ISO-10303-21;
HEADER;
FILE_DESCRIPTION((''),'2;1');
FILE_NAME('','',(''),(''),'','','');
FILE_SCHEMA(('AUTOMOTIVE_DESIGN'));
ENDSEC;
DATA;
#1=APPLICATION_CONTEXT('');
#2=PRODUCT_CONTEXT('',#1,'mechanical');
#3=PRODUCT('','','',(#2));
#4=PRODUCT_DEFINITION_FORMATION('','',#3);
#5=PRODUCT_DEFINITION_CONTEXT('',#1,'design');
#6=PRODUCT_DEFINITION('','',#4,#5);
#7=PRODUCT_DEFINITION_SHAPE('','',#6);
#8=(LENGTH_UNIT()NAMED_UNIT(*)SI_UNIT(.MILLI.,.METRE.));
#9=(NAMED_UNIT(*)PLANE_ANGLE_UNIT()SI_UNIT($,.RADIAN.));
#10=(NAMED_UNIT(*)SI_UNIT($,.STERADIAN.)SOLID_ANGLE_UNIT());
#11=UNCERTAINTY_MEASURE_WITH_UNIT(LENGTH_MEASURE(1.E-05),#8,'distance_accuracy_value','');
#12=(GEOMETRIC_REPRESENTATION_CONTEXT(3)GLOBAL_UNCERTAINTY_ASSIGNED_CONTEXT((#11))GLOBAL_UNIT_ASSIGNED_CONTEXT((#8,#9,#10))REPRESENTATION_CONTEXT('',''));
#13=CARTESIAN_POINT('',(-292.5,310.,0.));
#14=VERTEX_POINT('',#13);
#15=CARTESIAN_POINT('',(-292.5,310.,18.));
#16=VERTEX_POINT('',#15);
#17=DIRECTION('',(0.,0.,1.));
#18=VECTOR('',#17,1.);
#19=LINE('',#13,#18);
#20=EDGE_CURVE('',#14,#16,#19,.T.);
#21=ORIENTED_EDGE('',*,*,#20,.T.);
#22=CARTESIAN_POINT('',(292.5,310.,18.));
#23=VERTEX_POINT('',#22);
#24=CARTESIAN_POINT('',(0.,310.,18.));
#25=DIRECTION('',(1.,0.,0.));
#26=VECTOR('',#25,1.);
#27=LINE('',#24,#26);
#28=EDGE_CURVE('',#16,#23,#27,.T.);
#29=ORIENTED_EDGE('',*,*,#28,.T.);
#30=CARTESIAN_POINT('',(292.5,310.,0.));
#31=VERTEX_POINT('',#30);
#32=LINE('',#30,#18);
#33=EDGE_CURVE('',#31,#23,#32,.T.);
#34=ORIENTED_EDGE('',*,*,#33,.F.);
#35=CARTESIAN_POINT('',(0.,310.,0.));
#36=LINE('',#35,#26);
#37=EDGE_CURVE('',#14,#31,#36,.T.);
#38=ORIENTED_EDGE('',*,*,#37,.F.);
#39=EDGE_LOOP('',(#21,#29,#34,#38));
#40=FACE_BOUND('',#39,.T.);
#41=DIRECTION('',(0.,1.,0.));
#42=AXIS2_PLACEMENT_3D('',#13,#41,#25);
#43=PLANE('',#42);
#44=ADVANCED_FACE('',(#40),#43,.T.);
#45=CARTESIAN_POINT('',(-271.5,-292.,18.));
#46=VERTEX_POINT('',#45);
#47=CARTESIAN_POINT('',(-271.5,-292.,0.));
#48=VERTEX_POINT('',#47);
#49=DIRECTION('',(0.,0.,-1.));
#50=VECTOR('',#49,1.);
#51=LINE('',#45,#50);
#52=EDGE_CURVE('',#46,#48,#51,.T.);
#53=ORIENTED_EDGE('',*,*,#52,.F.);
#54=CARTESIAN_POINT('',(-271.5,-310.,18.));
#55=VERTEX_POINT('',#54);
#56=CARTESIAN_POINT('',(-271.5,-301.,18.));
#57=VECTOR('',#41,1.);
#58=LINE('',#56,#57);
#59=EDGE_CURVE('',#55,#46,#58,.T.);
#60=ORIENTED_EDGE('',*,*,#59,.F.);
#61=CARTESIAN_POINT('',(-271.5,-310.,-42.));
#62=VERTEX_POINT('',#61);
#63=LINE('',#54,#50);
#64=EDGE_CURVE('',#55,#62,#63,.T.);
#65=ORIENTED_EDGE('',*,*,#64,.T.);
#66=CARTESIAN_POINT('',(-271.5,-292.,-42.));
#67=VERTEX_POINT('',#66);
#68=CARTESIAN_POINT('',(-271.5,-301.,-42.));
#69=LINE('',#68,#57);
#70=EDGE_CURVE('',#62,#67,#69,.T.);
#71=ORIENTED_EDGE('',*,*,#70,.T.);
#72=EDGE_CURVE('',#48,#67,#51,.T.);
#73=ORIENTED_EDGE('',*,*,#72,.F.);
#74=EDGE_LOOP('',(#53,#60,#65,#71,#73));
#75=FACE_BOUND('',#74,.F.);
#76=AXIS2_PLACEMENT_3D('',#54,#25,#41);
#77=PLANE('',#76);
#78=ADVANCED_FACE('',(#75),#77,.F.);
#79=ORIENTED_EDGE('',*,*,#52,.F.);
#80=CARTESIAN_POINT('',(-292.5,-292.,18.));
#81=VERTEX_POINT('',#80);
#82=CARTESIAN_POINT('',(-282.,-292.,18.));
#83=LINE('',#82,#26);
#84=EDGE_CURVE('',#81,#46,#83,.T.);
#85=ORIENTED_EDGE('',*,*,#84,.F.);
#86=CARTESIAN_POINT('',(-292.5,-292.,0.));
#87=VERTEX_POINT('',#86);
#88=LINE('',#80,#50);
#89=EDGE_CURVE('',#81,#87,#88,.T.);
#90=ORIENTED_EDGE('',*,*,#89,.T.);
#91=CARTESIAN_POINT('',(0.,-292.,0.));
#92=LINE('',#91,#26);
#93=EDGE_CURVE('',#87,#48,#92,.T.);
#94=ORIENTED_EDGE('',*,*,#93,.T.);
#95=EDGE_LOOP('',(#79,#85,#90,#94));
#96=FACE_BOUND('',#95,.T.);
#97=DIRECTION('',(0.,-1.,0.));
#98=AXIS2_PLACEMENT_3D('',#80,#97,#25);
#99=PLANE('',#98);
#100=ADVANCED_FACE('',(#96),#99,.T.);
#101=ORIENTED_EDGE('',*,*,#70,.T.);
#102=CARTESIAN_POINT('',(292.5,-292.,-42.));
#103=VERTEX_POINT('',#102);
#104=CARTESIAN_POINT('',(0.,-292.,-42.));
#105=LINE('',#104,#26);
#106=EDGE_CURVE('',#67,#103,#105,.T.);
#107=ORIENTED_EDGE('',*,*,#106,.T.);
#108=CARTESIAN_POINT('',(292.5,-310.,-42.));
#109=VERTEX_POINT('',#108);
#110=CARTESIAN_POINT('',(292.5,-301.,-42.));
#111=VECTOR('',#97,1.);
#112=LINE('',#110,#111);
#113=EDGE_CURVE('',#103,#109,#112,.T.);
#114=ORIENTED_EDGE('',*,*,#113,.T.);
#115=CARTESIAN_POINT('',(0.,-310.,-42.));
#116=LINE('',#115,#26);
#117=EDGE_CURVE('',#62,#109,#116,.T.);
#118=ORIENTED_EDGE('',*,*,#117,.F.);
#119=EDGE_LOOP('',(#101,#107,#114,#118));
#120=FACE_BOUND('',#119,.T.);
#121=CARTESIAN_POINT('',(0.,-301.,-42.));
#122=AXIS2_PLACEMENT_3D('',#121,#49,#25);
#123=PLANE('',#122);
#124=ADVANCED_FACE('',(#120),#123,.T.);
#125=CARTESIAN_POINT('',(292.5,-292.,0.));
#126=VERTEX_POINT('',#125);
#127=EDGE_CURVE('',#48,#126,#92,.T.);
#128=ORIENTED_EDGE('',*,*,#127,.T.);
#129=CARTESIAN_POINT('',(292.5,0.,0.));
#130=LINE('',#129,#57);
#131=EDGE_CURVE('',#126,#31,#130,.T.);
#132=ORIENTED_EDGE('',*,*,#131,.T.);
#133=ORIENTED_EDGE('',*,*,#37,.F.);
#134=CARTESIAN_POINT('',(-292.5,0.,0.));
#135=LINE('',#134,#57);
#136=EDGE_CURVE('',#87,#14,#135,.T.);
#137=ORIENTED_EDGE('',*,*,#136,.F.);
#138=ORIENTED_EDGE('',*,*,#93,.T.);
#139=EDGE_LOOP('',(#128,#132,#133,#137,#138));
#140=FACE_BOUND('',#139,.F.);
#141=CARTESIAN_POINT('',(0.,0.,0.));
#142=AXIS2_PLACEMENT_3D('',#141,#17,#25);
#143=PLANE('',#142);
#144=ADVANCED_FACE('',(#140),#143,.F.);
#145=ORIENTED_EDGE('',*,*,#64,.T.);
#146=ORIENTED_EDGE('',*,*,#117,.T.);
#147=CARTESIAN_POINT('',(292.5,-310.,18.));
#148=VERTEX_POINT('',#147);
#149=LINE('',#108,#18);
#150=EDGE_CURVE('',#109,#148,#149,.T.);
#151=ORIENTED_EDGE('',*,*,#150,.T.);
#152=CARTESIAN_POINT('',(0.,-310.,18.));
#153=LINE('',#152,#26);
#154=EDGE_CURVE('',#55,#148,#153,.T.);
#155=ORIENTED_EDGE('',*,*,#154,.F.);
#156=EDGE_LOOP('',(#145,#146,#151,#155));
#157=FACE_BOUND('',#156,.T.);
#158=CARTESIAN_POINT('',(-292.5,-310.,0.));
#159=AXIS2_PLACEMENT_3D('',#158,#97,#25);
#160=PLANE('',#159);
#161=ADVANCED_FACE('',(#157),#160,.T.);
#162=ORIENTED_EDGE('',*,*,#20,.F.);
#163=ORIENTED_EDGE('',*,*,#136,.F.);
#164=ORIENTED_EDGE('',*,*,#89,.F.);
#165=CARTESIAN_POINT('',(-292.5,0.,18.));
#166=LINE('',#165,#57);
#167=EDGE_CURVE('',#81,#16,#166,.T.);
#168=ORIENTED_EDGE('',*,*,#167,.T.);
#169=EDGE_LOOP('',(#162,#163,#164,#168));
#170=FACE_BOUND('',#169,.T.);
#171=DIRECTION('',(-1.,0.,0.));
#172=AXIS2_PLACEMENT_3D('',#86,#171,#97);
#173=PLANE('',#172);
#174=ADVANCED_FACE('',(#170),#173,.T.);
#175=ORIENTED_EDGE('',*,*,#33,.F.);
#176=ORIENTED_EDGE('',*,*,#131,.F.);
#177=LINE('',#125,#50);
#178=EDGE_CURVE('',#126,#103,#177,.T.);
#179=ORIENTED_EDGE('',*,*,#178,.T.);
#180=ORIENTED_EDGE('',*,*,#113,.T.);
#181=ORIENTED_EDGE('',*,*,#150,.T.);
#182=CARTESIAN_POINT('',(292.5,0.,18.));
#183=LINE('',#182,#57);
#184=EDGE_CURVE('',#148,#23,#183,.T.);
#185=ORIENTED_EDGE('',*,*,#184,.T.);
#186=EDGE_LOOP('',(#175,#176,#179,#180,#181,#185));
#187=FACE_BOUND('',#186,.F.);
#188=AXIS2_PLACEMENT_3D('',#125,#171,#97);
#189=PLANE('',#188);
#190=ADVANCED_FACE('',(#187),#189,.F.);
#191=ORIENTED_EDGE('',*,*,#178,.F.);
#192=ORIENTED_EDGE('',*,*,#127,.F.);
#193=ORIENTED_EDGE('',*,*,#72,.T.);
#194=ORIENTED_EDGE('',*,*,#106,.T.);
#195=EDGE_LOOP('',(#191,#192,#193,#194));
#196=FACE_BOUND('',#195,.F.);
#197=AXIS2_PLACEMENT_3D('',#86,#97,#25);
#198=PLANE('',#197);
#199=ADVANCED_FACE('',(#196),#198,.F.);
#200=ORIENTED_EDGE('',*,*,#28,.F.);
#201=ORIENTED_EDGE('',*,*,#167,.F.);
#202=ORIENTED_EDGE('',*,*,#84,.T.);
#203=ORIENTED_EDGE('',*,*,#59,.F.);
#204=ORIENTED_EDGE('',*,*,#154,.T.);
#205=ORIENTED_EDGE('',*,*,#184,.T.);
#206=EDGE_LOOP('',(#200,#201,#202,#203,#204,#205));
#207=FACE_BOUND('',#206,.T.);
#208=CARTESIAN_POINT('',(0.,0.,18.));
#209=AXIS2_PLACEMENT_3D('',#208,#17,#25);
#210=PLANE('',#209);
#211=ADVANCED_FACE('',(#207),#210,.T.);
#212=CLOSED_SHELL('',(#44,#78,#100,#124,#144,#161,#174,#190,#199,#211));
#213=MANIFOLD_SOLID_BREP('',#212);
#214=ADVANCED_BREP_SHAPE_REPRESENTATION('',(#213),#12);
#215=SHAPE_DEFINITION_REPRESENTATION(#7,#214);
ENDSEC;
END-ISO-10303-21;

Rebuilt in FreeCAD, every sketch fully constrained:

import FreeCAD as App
import Part
import Sketcher
from FreeCAD import Vector


def add_polygon(sketch, points):
    """Adds a closed chain of lines whose ends are joined by coincident constraints."""
    first, n = sketch.GeometryCount, len(points)
    for a, b in zip(points, points[1:] + points[:1]):
        sketch.addGeometry(Part.LineSegment(App.Vector(*a, 0), App.Vector(*b, 0)), False)
    for i in range(n):
        sketch.addConstraint(Sketcher.Constraint("Coincident", first + i, 2, first + (i + 1) % n, 1))

doc = App.newDocument("Part")
params = doc.addObject("Spreadsheet::Sheet", "Params")
for row, (alias, value) in enumerate([
    ("sketch1_width", "585 mm"),
    ("sketch1_height", "620 mm"),
    ("pad1_length", "18 mm"),
    ("sketch2_width", "585 mm"),
    ("sketch2_height", "18 mm"),
    ("pad2_length", "42 mm"),
    ("sketch3_width", "21 mm"),
    ("sketch3_height", "18 mm"),
    ("pocket1_length", "60 mm"),
], start=1):
    params.set(f"A{row}", alias)
    params.set(f"B{row}", "=" + value)
    params.setAlias(f"B{row}", alias)

body = doc.addObject("PartDesign::Body", "Body")

# Sketch on XY plane
sketch1 = doc.addObject("Sketcher::SketchObject", "Sketch")
body.addObject(sketch1)
sketch1.AttachmentSupport = (doc.XY_Plane, [""])
sketch1.MapMode = "FlatFace"
add_polygon(sketch1, [(-292, 310), (-292, -310), (292, -310), (292, 310)])  # lines 0-3
sketch1.addConstraint([
    Sketcher.Constraint("Vertical", 0),
    Sketcher.Constraint("Horizontal", 1),
    Sketcher.Constraint("Vertical", 2),
    Sketcher.Constraint("Horizontal", 3),
    Sketcher.Constraint("Symmetric", 0, 2, 2, 2, -1, 1),
    Sketcher.Constraint("DistanceX", 1, 1, 1, 2, 585.0),
    Sketcher.Constraint("DistanceY", 0, 2, 0, 1, 620.0),
])
sketch1.setExpression("Constraints[9]", "Params.sketch1_width")
sketch1.setExpression("Constraints[10]", "Params.sketch1_height")
pad1 = doc.addObject("PartDesign::Pad", "Pad")
body.addObject(pad1)
pad1.Profile = sketch1
pad1.setExpression("Length", "Params.pad1_length")

# Sketch on XY plane
sketch2 = doc.addObject("Sketcher::SketchObject", "Sketch001")
body.addObject(sketch2)
sketch2.AttachmentSupport = (doc.XY_Plane, [""])
sketch2.MapMode = "FlatFace"
add_polygon(sketch2, [(-292, -310), (-292, -292), (292, -292), (292, -310)])  # lines 0-3
sketch2.addConstraint([
    Sketcher.Constraint("Vertical", 0),
    Sketcher.Constraint("Horizontal", 1),
    Sketcher.Constraint("Vertical", 2),
    Sketcher.Constraint("Horizontal", 3),
    Sketcher.Constraint("DistanceX", 1, 1, 1, 2, 585.0),
    Sketcher.Constraint("DistanceY", 0, 1, 0, 2, 18.0),
    Sketcher.Constraint("DistanceY", 0, 2, -1, 1, 292.0),
    Sketcher.Constraint("DistanceX", 0, 2, -1, 1, 292.5),
])
sketch2.setExpression("Constraints[8]", "Params.sketch2_width")
sketch2.setExpression("Constraints[9]", "Params.sketch2_height")
pad2 = doc.addObject("PartDesign::Pad", "Pad001")
body.addObject(pad2)
pad2.Profile = sketch2
pad2.setExpression("Length", "Params.pad2_length")
pad2.Reversed = True

# Sketch on XY plane
sketch3 = doc.addObject("Sketcher::SketchObject", "Sketch002")
body.addObject(sketch3)
sketch3.AttachmentSupport = (doc.XY_Plane, [""])
sketch3.MapMode = "FlatFace"
sketch3.AttachmentOffset = App.Placement(Vector(0, 0, 18), App.Rotation())
add_polygon(sketch3, [(-292, -292), (-292, -310), (-272, -310), (-272, -292)])  # lines 0-3
sketch3.addConstraint([
    Sketcher.Constraint("Vertical", 0),
    Sketcher.Constraint("Horizontal", 1),
    Sketcher.Constraint("Vertical", 2),
    Sketcher.Constraint("Horizontal", 3),
    Sketcher.Constraint("DistanceX", 1, 1, 1, 2, 21.0),
    Sketcher.Constraint("DistanceY", 0, 2, 0, 1, 18.0),
    Sketcher.Constraint("DistanceY", 0, 2, -1, 1, 310.0),
    Sketcher.Constraint("DistanceX", 0, 2, -1, 1, 292.5),
])
sketch3.setExpression("Constraints[8]", "Params.sketch3_width")
sketch3.setExpression("Constraints[9]", "Params.sketch3_height")
pocket1 = doc.addObject("PartDesign::Pocket", "Pocket")
body.addObject(pocket1)
pocket1.Profile = sketch3
pocket1.setExpression("Length", "Params.pocket1_length")

doc.recompute()
